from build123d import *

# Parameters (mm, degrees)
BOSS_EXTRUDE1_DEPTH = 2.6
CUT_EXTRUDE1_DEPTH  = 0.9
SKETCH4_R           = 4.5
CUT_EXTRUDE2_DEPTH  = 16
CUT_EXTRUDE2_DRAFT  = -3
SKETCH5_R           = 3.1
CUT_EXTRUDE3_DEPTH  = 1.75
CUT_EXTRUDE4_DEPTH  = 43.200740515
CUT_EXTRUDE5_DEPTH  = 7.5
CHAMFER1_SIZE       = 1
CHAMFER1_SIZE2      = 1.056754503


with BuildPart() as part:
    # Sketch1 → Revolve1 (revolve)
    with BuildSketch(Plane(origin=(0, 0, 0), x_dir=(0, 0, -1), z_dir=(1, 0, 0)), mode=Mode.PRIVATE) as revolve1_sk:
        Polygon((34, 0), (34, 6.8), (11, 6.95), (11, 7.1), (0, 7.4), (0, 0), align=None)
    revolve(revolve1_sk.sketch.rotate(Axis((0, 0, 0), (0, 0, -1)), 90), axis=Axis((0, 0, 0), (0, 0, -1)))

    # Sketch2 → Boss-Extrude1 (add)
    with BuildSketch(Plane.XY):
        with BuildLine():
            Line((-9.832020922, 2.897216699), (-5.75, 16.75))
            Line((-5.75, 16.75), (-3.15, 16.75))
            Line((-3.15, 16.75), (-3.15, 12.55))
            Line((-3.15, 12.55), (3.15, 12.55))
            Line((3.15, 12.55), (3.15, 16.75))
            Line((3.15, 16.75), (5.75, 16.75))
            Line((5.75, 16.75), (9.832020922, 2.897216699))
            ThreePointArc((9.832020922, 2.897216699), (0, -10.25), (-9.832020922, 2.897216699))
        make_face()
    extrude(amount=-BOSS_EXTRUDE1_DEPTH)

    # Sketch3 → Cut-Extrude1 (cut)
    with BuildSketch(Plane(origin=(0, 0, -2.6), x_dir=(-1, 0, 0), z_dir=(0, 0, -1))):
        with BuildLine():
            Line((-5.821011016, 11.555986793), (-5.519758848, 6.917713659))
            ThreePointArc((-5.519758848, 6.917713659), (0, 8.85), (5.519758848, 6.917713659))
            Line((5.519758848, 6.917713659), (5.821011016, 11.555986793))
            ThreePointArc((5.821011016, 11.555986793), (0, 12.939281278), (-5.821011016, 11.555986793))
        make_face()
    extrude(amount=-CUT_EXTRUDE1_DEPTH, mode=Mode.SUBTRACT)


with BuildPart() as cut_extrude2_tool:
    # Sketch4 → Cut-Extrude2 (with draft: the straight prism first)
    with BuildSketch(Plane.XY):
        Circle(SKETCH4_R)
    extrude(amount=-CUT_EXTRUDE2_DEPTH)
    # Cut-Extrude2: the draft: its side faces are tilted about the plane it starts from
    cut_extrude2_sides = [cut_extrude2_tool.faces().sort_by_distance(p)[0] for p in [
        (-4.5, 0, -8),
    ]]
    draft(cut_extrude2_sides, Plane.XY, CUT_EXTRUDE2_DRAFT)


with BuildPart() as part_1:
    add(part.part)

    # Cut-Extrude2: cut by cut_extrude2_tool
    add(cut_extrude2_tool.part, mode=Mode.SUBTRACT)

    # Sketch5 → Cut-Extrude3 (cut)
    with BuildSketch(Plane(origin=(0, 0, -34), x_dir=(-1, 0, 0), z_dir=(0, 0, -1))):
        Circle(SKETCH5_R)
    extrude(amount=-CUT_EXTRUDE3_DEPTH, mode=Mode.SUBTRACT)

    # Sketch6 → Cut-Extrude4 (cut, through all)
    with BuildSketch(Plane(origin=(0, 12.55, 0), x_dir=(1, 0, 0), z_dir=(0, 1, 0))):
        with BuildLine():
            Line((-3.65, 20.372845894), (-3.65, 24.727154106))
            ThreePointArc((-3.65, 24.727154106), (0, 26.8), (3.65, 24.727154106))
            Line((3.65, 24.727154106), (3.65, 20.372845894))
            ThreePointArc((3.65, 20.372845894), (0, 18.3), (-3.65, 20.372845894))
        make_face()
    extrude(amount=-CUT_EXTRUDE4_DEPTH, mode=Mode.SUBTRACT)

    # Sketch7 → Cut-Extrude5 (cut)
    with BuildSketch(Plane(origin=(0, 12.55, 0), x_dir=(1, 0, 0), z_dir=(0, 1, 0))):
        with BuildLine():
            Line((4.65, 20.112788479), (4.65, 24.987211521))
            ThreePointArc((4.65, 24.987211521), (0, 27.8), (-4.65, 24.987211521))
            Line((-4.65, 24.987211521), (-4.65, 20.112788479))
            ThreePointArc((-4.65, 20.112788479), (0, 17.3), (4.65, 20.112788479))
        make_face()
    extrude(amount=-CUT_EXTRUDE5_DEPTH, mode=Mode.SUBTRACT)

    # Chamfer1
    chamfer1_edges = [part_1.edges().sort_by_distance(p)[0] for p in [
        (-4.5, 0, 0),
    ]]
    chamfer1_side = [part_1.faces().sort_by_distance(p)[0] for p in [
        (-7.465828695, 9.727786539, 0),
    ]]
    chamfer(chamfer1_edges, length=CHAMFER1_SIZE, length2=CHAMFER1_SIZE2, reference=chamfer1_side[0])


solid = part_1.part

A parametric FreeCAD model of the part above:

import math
import FreeCAD as App
import Part
import Sketcher
from FreeCAD import Vector
Q = App.Units.Quantity


def edges_at(feature, points):
    """Names of the edges that pass closest to the given points."""
    edges = feature.Shape.Edges
    near = lambda p: min(range(len(edges)), key=lambda i: edges[i].distToShape(Part.Vertex(*p))[0])
    return sorted({f"Edge{near(p) + 1}" for p in points})


def faces_at(feature, points):
    """Names of the faces that lie closest to the given points."""
    faces = feature.Shape.Faces
    near = lambda p: min(range(len(faces)), key=lambda i: faces[i].distToShape(Part.Vertex(*p))[0])
    return sorted({f"Face{near(p) + 1}" for p in points})

doc = App.newDocument("Part")
params = doc.addObject("Spreadsheet::Sheet", "Params")
for row, (alias, value) in enumerate([
    ("sketch1_height", "34 mm"),
    ("sketch1_width", "6.8 mm"),
    ("sketch1_width2", "7.4 mm"),
    ("sketch1_width3", "0.15 mm"),
    ("revolution_angle", "360 deg"),
    ("sketch2_radius", "10.25 mm"),
    ("sketch2_width", "2.6 mm"),
    ("sketch2_width2", "6.3 mm"),
    ("sketch2_height", "4.2 mm"),
    ("pad1_length", "2.6 mm"),
    ("sketch3_radius", "8.85 mm"),
    ("pocket1_length", "0.9 mm"),
    ("sketch4_diameter", "9 mm"),
    ("pad2_length", "16 mm"),
    ("draft_angle", "3 deg"),
    ("sketch5_diameter", "6.2 mm"),
    ("pocket2_length", "1.75 mm"),
    ("sketch6_radius", "4.25 mm"),
    ("sketch7_radius", "5.25 mm"),
    ("pocket4_length", "7.5 mm"),
    ("chamfer_size", "1 mm"),
    ("chamfer_size2", "1.056755 mm"),
], start=1):
    params.set(f"A{row}", alias)
    params.set(f"B{row}", "=" + value)
    params.setAlias(f"B{row}", alias)

body = doc.addObject("PartDesign::Body", "Body")

# Sketch on YZ plane
sketch1 = body.newObject("Sketcher::SketchObject", "Sketch")
sketch1.AttachmentSupport = (doc.getObject("YZ_Plane"), [""])
sketch1.MapMode = "FlatFace"
sketch1.addGeometry([
    Part.LineSegment(Vector(0, -34, 0), Vector(6.8, -34, 0)),  # 0
    Part.LineSegment(Vector(6.8, -34, 0), Vector(6.95, -11, 0)),  # 1
    Part.LineSegment(Vector(6.95, -11, 0), Vector(7.1, -11, 0)),  # 2
    Part.LineSegment(Vector(7.1, -11, 0), Vector(7.4, 0, 0)),  # 3
    Part.LineSegment(Vector(7.4, 0, 0), Vector(0, 0, 0)),  # 4
    Part.LineSegment(Vector(0, 0, 0), Vector(0, -34, 0)),  # 5
], False)
sketch1.addConstraint([
    Sketcher.Constraint("Coincident", 0, 2, 1, 1),
    Sketcher.Constraint("Coincident", 1, 2, 2, 1),
    Sketcher.Constraint("Coincident", 2, 2, 3, 1),
    Sketcher.Constraint("Coincident", 3, 2, 4, 1),
    Sketcher.Constraint("Coincident", 4, 2, 5, 1),
    Sketcher.Constraint("Coincident", 5, 2, 0, 1),
    Sketcher.Constraint("Horizontal", 0),
    Sketcher.Constraint("Horizontal", 2),
    Sketcher.Constraint("Horizontal", 4),
    Sketcher.Constraint("Vertical", 5),
    Sketcher.Constraint("Coincident", 4, 2, -1, 1),
    Sketcher.Constraint("DistanceY", 5, 2, 5, 1, Q("34 mm")),
    Sketcher.Constraint("DistanceX", 0, 1, 0, 2, Q("6.8 mm")),
    Sketcher.Constraint("DistanceX", 4, 2, 4, 1, Q("7.4 mm")),
    Sketcher.Constraint("DistanceY", 1, 2, -1, 1, Q("11 mm")),
    Sketcher.Constraint("DistanceX", 2, 1, 2, 2, Q("0.15 mm")),
    Sketcher.Constraint("DistanceX", -1, 1, 2, 2, Q("7.1 mm")),
])
sketch1.setExpression("Constraints[11]", "Params.sketch1_height")
sketch1.setExpression("Constraints[12]", "Params.sketch1_width")
sketch1.setExpression("Constraints[13]", "Params.sketch1_width2")
sketch1.setExpression("Constraints[15]", "Params.sketch1_width3")
revolution = body.newObject("PartDesign::Revolution", "Revolution")
revolution.Profile = sketch1
revolution.ReferenceAxis = (sketch1, ["V_Axis"])
revolution.setExpression("Angle", "Params.revolution_angle")

# Sketch on XY plane
sketch2 = body.newObject("Sketcher::SketchObject", "Sketch001")
sketch2.AttachmentSupport = (doc.getObject("XY_Plane"), [""])
sketch2.MapMode = "FlatFace"
sketch2.addGeometry([
    Part.LineSegment(Vector(-5.8, 16.8, 0), Vector(-9.8, 2.9, 0)),  # 0
    Part.ArcOfCircle(Part.Circle(Vector(0, 0, 0), Vector(0, 0, 1), 10.2), math.radians(164), math.radians(376)),  # 1
    Part.LineSegment(Vector(9.8, 2.9, 0), Vector(5.8, 16.8, 0)),  # 2
    Part.LineSegment(Vector(5.8, 16.8, 0), Vector(3.1, 16.8, 0)),  # 3
    Part.LineSegment(Vector(3.1, 16.8, 0), Vector(3.1, 12.6, 0)),  # 4
    Part.LineSegment(Vector(3.1, 12.6, 0), Vector(-3.1, 12.6, 0)),  # 5
    Part.LineSegment(Vector(-3.1, 12.6, 0), Vector(-3.1, 16.8, 0)),  # 6
    Part.LineSegment(Vector(-3.1, 16.8, 0), Vector(-5.8, 16.8, 0)),  # 7
], False)
sketch2.addConstraint([
    Sketcher.Constraint("Tangent", 0, 2, 1, 1),
    Sketcher.Constraint("Tangent", 1, 2, 2, 1),
    Sketcher.Constraint("Coincident", 2, 2, 3, 1),
    Sketcher.Constraint("Coincident", 3, 2, 4, 1),
    Sketcher.Constraint("Coincident", 4, 2, 5, 1),
    Sketcher.Constraint("Coincident", 5, 2, 6, 1),
    Sketcher.Constraint("Coincident", 6, 2, 7, 1),
    Sketcher.Constraint("Coincident", 7, 2, 0, 1),
    Sketcher.Constraint("Horizontal", 3),
    Sketcher.Constraint("Vertical", 4),
    Sketcher.Constraint("Horizontal", 5),
    Sketcher.Constraint("Vertical", 6),
    Sketcher.Constraint("Horizontal", 7),
    Sketcher.Constraint("Coincident", 1, 3, -1, 1),
    Sketcher.Constraint("Symmetric", 3, 2, 6, 2, -2),
    Sketcher.Constraint("Horizontal", 0, 2, 1, 2),
    Sketcher.Constraint("Radius", 1, Q("10.25 mm")),
    Sketcher.Constraint("DistanceX", 3, 2, 3, 1, Q("2.6 mm")),
    Sketcher.Constraint("DistanceX", 5, 2, 5, 1, Q("6.3 mm")),
    Sketcher.Constraint("DistanceY", 4, 2, 4, 1, Q("4.2 mm")),
    Sketcher.Constraint("DistanceY", -1, 1, 2, 2, Q("16.75 mm")),
])
sketch2.setExpression("Constraints[16]", "Params.sketch2_radius")
sketch2.setExpression("Constraints[17]", "Params.sketch2_width")
sketch2.setExpression("Constraints[18]", "Params.sketch2_width2")
sketch2.setExpression("Constraints[19]", "Params.sketch2_height")
pad1 = body.newObject("PartDesign::Pad", "Pad")
pad1.Profile = sketch2
pad1.setExpression("Length", "Params.pad1_length")
pad1.Reversed = True

# Sketch on XY plane
sketch3 = body.newObject("Sketcher::SketchObject", "Sketch002")
sketch3.AttachmentSupport = (doc.getObject("XY_Plane"), [""])
sketch3.MapMode = "FlatFace"
sketch3.AttachmentOffset = App.Placement(Vector(0, 0, -2.6), App.Rotation())
sketch3.addGeometry([
    Part.LineSegment(Vector(5.8, 11.6, 0), Vector(5.5, 6.9, 0)),
    Part.ArcOfCircle(Part.Circle(Vector(0, 0, 0), Vector(0, 0, 1), 8.9), math.radians(51), math.radians(129)),
    Part.LineSegment(Vector(-5.5, 6.9, 0), Vector(-5.8, 11.6, 0)),
    Part.ArcOfCircle(Part.Circle(Vector(0, 0, 0), Vector(0, 0, 1), 12.9), math.radians(63), math.radians(117)),
], False)
sketch3.addConstraint([
    Sketcher.Constraint("Coincident", 0, 2, 1, 1),
    Sketcher.Constraint("Coincident", 1, 2, 2, 1),
    Sketcher.Constraint("Coincident", 2, 2, 3, 2),
    Sketcher.Constraint("Coincident", 3, 1, 0, 1),
    Sketcher.Constraint("Coincident", 1, 3, -1, 1),
    Sketcher.Constraint("Coincident", 3, 3, -1, 1),
    Sketcher.Constraint("Horizontal", 0, 2, 1, 2),
    Sketcher.Constraint("Horizontal", 2, 2, 3, 1),
    Sketcher.Constraint("Radius", 1, Q("8.85 mm")),
    Sketcher.Constraint("Radius", 3, Q("12.939281 mm")),
    Sketcher.Constraint("DistanceX", -1, 1, 0, 2, Q("5.519759 mm")),
    Sketcher.Constraint("DistanceX", 2, 2, -1, 1, Q("5.821011 mm")),
])
sketch3.setExpression("Constraints[8]", "Params.sketch3_radius")
pocket1 = body.newObject("PartDesign::Pocket", "Pocket")
pocket1.Profile = sketch3
pocket1.setExpression("Length", "Params.pocket1_length")
pocket1.Reversed = True
body2 = doc.addObject("PartDesign::Body", "Body001")

# Sketch on XY plane
sketch4 = body2.newObject("Sketcher::SketchObject", "Sketch003")
sketch4.AttachmentSupport = (doc.getObject("XY_Plane001"), [""])
sketch4.MapMode = "FlatFace"
sketch4.addGeometry(Part.Circle(Vector(0, 0, 0), Vector(0, 0, 1), 4.5), False)
sketch4.addConstraint([
    Sketcher.Constraint("Coincident", 0, 3, -1, 1),
    Sketcher.Constraint("Diameter", 0, Q("9 mm")),
])
sketch4.setExpression("Constraints[1]", "Params.sketch4_diameter")
pad2 = body2.newObject("PartDesign::Pad", "Pad001")
pad2.Profile = sketch4
pad2.setExpression("Length", "Params.pad2_length")
pad2.Reversed = True
doc.recompute()

draft = body2.newObject("PartDesign::Draft", "Draft")
draft.Base = (pad2, faces_at(pad2, [(-4.5, 0, -8)]))
draft.NeutralPlane = (doc.getObject("XY_Plane001"), [""])
draft.setExpression("Angle", "Params.draft_angle")
draft.Reversed = True
doc.recompute()

boolean = body.newObject("PartDesign::Boolean", "Boolean")
boolean.Type = "Cut"
boolean.addObjects([body2])

# Sketch on XY plane
sketch5 = body.newObject("Sketcher::SketchObject", "Sketch004")
sketch5.AttachmentSupport = (doc.getObject("XY_Plane"), [""])
sketch5.MapMode = "FlatFace"
sketch5.AttachmentOffset = App.Placement(Vector(0, 0, -34), App.Rotation())
sketch5.addGeometry(Part.Circle(Vector(0, 0, 0), Vector(0, 0, 1), 3.1), False)
sketch5.addConstraint([
    Sketcher.Constraint("Coincident", 0, 3, -1, 1),
    Sketcher.Constraint("Diameter", 0, Q("6.2 mm")),
])
sketch5.setExpression("Constraints[1]", "Params.sketch5_diameter")
pocket2 = body.newObject("PartDesign::Pocket", "Pocket001")
pocket2.Profile = sketch5
pocket2.setExpression("Length", "Params.pocket2_length")
pocket2.Reversed = True

# Sketch on XZ plane
sketch6 = body.newObject("Sketcher::SketchObject", "Sketch005")
sketch6.AttachmentSupport = (doc.getObject("XZ_Plane"), [""])
sketch6.MapMode = "FlatFace"
sketch6.AttachmentOffset = App.Placement(Vector(0, 0, -12.55), App.Rotation())
sketch6.addGeometry([
    Part.LineSegment(Vector(-3.6, -24.7, 0), Vector(-3.6, -20.4, 0)),
    Part.ArcOfCircle(Part.Circle(Vector(0, -22.6, 0), Vector(0, 0, 1), 4.2), math.radians(31), math.radians(149)),
    Part.LineSegment(Vector(3.6, -20.4, 0), Vector(3.6, -24.7, 0)),
    Part.ArcOfCircle(Part.Circle(Vector(0, -22.6, 0), Vector(0, 0, 1), 4.2), math.radians(-149), math.radians(-31)),
], False)
sketch6.addConstraint([
    Sketcher.Constraint("Coincident", 0, 2, 1, 2),
    Sketcher.Constraint("Coincident", 1, 1, 2, 1),
    Sketcher.Constraint("Coincident", 2, 2, 3, 2),
    Sketcher.Constraint("Coincident", 3, 1, 0, 1),
    Sketcher.Constraint("Vertical", 0),
    Sketcher.Constraint("Vertical", 2),
    Sketcher.Constraint("Coincident", 3, 3, 1, 3),
    Sketcher.Constraint("Equal", 1, 3),
    Sketcher.Constraint("Symmetric", 0, 2, 1, 1, -2),
    Sketcher.Constraint("Radius", 1, Q("4.25 mm")),
    Sketcher.Constraint("DistanceX", 0, 2, 1, 1, Q("7.3 mm")),
    Sketcher.Constraint("DistanceY", 1, 3, -1, 1, Q("22.55 mm")),
])
sketch6.setExpression("Constraints[9]", "Params.sketch6_radius")
pocket3 = body.newObject("PartDesign::Pocket", "Pocket002")
pocket3.Profile = sketch6
pocket3.Type = "ThroughAll"
pocket3.Reversed = True

# Sketch on XZ plane
sketch7 = body.newObject("Sketcher::SketchObject", "Sketch006")
sketch7.AttachmentSupport = (doc.getObject("XZ_Plane"), [""])
sketch7.MapMode = "FlatFace"
sketch7.AttachmentOffset = App.Placement(Vector(0, 0, -12.55), App.Rotation())
sketch7.addGeometry([
    Part.LineSegment(Vector(4.7, -20.1, 0), Vector(4.7, -25, 0)),
    Part.ArcOfCircle(Part.Circle(Vector(0, -22.6, 0), Vector(0, 0, 1), 5.2), math.radians(-152), math.radians(-28)),
    Part.LineSegment(Vector(-4.7, -25, 0), Vector(-4.7, -20.1, 0)),
    Part.ArcOfCircle(Part.Circle(Vector(0, -22.6, 0), Vector(0, 0, 1), 5.2), math.radians(28), math.radians(152)),
], False)
sketch7.addConstraint([
    Sketcher.Constraint("Coincident", 0, 2, 1, 2),
    Sketcher.Constraint("Coincident", 1, 1, 2, 1),
    Sketcher.Constraint("Coincident", 2, 2, 3, 2),
    Sketcher.Constraint("Coincident", 3, 1, 0, 1),
    Sketcher.Constraint("Vertical", 0),
    Sketcher.Constraint("Vertical", 2),
    Sketcher.Constraint("Coincident", 3, 3, 1, 3),
    Sketcher.Constraint("Equal", 1, 3),
    Sketcher.Constraint("Symmetric", 0, 2, 1, 1, -2),
    Sketcher.Constraint("Radius", 1, Q("5.25 mm")),
    Sketcher.Constraint("DistanceX", 1, 1, 0, 2, Q("9.3 mm")),
    Sketcher.Constraint("DistanceY", 1, 3, -1, 1, Q("22.55 mm")),
])
sketch7.setExpression("Constraints[9]", "Params.sketch7_radius")
pocket4 = body.newObject("PartDesign::Pocket", "Pocket003")
pocket4.Profile = sketch7
pocket4.setExpression("Length", "Params.pocket4_length")
pocket4.Reversed = True
doc.recompute()

chamfer = body.newObject("PartDesign::Chamfer", "Chamfer")
chamfer.Base = (pocket4, edges_at(pocket4, [(-4.5, 0, 0)]))
chamfer.ChamferType = "Two distances"
chamfer.setExpression("Size", "Params.chamfer_size")
chamfer.setExpression("Size2", "Params.chamfer_size2")

doc.recompute()
